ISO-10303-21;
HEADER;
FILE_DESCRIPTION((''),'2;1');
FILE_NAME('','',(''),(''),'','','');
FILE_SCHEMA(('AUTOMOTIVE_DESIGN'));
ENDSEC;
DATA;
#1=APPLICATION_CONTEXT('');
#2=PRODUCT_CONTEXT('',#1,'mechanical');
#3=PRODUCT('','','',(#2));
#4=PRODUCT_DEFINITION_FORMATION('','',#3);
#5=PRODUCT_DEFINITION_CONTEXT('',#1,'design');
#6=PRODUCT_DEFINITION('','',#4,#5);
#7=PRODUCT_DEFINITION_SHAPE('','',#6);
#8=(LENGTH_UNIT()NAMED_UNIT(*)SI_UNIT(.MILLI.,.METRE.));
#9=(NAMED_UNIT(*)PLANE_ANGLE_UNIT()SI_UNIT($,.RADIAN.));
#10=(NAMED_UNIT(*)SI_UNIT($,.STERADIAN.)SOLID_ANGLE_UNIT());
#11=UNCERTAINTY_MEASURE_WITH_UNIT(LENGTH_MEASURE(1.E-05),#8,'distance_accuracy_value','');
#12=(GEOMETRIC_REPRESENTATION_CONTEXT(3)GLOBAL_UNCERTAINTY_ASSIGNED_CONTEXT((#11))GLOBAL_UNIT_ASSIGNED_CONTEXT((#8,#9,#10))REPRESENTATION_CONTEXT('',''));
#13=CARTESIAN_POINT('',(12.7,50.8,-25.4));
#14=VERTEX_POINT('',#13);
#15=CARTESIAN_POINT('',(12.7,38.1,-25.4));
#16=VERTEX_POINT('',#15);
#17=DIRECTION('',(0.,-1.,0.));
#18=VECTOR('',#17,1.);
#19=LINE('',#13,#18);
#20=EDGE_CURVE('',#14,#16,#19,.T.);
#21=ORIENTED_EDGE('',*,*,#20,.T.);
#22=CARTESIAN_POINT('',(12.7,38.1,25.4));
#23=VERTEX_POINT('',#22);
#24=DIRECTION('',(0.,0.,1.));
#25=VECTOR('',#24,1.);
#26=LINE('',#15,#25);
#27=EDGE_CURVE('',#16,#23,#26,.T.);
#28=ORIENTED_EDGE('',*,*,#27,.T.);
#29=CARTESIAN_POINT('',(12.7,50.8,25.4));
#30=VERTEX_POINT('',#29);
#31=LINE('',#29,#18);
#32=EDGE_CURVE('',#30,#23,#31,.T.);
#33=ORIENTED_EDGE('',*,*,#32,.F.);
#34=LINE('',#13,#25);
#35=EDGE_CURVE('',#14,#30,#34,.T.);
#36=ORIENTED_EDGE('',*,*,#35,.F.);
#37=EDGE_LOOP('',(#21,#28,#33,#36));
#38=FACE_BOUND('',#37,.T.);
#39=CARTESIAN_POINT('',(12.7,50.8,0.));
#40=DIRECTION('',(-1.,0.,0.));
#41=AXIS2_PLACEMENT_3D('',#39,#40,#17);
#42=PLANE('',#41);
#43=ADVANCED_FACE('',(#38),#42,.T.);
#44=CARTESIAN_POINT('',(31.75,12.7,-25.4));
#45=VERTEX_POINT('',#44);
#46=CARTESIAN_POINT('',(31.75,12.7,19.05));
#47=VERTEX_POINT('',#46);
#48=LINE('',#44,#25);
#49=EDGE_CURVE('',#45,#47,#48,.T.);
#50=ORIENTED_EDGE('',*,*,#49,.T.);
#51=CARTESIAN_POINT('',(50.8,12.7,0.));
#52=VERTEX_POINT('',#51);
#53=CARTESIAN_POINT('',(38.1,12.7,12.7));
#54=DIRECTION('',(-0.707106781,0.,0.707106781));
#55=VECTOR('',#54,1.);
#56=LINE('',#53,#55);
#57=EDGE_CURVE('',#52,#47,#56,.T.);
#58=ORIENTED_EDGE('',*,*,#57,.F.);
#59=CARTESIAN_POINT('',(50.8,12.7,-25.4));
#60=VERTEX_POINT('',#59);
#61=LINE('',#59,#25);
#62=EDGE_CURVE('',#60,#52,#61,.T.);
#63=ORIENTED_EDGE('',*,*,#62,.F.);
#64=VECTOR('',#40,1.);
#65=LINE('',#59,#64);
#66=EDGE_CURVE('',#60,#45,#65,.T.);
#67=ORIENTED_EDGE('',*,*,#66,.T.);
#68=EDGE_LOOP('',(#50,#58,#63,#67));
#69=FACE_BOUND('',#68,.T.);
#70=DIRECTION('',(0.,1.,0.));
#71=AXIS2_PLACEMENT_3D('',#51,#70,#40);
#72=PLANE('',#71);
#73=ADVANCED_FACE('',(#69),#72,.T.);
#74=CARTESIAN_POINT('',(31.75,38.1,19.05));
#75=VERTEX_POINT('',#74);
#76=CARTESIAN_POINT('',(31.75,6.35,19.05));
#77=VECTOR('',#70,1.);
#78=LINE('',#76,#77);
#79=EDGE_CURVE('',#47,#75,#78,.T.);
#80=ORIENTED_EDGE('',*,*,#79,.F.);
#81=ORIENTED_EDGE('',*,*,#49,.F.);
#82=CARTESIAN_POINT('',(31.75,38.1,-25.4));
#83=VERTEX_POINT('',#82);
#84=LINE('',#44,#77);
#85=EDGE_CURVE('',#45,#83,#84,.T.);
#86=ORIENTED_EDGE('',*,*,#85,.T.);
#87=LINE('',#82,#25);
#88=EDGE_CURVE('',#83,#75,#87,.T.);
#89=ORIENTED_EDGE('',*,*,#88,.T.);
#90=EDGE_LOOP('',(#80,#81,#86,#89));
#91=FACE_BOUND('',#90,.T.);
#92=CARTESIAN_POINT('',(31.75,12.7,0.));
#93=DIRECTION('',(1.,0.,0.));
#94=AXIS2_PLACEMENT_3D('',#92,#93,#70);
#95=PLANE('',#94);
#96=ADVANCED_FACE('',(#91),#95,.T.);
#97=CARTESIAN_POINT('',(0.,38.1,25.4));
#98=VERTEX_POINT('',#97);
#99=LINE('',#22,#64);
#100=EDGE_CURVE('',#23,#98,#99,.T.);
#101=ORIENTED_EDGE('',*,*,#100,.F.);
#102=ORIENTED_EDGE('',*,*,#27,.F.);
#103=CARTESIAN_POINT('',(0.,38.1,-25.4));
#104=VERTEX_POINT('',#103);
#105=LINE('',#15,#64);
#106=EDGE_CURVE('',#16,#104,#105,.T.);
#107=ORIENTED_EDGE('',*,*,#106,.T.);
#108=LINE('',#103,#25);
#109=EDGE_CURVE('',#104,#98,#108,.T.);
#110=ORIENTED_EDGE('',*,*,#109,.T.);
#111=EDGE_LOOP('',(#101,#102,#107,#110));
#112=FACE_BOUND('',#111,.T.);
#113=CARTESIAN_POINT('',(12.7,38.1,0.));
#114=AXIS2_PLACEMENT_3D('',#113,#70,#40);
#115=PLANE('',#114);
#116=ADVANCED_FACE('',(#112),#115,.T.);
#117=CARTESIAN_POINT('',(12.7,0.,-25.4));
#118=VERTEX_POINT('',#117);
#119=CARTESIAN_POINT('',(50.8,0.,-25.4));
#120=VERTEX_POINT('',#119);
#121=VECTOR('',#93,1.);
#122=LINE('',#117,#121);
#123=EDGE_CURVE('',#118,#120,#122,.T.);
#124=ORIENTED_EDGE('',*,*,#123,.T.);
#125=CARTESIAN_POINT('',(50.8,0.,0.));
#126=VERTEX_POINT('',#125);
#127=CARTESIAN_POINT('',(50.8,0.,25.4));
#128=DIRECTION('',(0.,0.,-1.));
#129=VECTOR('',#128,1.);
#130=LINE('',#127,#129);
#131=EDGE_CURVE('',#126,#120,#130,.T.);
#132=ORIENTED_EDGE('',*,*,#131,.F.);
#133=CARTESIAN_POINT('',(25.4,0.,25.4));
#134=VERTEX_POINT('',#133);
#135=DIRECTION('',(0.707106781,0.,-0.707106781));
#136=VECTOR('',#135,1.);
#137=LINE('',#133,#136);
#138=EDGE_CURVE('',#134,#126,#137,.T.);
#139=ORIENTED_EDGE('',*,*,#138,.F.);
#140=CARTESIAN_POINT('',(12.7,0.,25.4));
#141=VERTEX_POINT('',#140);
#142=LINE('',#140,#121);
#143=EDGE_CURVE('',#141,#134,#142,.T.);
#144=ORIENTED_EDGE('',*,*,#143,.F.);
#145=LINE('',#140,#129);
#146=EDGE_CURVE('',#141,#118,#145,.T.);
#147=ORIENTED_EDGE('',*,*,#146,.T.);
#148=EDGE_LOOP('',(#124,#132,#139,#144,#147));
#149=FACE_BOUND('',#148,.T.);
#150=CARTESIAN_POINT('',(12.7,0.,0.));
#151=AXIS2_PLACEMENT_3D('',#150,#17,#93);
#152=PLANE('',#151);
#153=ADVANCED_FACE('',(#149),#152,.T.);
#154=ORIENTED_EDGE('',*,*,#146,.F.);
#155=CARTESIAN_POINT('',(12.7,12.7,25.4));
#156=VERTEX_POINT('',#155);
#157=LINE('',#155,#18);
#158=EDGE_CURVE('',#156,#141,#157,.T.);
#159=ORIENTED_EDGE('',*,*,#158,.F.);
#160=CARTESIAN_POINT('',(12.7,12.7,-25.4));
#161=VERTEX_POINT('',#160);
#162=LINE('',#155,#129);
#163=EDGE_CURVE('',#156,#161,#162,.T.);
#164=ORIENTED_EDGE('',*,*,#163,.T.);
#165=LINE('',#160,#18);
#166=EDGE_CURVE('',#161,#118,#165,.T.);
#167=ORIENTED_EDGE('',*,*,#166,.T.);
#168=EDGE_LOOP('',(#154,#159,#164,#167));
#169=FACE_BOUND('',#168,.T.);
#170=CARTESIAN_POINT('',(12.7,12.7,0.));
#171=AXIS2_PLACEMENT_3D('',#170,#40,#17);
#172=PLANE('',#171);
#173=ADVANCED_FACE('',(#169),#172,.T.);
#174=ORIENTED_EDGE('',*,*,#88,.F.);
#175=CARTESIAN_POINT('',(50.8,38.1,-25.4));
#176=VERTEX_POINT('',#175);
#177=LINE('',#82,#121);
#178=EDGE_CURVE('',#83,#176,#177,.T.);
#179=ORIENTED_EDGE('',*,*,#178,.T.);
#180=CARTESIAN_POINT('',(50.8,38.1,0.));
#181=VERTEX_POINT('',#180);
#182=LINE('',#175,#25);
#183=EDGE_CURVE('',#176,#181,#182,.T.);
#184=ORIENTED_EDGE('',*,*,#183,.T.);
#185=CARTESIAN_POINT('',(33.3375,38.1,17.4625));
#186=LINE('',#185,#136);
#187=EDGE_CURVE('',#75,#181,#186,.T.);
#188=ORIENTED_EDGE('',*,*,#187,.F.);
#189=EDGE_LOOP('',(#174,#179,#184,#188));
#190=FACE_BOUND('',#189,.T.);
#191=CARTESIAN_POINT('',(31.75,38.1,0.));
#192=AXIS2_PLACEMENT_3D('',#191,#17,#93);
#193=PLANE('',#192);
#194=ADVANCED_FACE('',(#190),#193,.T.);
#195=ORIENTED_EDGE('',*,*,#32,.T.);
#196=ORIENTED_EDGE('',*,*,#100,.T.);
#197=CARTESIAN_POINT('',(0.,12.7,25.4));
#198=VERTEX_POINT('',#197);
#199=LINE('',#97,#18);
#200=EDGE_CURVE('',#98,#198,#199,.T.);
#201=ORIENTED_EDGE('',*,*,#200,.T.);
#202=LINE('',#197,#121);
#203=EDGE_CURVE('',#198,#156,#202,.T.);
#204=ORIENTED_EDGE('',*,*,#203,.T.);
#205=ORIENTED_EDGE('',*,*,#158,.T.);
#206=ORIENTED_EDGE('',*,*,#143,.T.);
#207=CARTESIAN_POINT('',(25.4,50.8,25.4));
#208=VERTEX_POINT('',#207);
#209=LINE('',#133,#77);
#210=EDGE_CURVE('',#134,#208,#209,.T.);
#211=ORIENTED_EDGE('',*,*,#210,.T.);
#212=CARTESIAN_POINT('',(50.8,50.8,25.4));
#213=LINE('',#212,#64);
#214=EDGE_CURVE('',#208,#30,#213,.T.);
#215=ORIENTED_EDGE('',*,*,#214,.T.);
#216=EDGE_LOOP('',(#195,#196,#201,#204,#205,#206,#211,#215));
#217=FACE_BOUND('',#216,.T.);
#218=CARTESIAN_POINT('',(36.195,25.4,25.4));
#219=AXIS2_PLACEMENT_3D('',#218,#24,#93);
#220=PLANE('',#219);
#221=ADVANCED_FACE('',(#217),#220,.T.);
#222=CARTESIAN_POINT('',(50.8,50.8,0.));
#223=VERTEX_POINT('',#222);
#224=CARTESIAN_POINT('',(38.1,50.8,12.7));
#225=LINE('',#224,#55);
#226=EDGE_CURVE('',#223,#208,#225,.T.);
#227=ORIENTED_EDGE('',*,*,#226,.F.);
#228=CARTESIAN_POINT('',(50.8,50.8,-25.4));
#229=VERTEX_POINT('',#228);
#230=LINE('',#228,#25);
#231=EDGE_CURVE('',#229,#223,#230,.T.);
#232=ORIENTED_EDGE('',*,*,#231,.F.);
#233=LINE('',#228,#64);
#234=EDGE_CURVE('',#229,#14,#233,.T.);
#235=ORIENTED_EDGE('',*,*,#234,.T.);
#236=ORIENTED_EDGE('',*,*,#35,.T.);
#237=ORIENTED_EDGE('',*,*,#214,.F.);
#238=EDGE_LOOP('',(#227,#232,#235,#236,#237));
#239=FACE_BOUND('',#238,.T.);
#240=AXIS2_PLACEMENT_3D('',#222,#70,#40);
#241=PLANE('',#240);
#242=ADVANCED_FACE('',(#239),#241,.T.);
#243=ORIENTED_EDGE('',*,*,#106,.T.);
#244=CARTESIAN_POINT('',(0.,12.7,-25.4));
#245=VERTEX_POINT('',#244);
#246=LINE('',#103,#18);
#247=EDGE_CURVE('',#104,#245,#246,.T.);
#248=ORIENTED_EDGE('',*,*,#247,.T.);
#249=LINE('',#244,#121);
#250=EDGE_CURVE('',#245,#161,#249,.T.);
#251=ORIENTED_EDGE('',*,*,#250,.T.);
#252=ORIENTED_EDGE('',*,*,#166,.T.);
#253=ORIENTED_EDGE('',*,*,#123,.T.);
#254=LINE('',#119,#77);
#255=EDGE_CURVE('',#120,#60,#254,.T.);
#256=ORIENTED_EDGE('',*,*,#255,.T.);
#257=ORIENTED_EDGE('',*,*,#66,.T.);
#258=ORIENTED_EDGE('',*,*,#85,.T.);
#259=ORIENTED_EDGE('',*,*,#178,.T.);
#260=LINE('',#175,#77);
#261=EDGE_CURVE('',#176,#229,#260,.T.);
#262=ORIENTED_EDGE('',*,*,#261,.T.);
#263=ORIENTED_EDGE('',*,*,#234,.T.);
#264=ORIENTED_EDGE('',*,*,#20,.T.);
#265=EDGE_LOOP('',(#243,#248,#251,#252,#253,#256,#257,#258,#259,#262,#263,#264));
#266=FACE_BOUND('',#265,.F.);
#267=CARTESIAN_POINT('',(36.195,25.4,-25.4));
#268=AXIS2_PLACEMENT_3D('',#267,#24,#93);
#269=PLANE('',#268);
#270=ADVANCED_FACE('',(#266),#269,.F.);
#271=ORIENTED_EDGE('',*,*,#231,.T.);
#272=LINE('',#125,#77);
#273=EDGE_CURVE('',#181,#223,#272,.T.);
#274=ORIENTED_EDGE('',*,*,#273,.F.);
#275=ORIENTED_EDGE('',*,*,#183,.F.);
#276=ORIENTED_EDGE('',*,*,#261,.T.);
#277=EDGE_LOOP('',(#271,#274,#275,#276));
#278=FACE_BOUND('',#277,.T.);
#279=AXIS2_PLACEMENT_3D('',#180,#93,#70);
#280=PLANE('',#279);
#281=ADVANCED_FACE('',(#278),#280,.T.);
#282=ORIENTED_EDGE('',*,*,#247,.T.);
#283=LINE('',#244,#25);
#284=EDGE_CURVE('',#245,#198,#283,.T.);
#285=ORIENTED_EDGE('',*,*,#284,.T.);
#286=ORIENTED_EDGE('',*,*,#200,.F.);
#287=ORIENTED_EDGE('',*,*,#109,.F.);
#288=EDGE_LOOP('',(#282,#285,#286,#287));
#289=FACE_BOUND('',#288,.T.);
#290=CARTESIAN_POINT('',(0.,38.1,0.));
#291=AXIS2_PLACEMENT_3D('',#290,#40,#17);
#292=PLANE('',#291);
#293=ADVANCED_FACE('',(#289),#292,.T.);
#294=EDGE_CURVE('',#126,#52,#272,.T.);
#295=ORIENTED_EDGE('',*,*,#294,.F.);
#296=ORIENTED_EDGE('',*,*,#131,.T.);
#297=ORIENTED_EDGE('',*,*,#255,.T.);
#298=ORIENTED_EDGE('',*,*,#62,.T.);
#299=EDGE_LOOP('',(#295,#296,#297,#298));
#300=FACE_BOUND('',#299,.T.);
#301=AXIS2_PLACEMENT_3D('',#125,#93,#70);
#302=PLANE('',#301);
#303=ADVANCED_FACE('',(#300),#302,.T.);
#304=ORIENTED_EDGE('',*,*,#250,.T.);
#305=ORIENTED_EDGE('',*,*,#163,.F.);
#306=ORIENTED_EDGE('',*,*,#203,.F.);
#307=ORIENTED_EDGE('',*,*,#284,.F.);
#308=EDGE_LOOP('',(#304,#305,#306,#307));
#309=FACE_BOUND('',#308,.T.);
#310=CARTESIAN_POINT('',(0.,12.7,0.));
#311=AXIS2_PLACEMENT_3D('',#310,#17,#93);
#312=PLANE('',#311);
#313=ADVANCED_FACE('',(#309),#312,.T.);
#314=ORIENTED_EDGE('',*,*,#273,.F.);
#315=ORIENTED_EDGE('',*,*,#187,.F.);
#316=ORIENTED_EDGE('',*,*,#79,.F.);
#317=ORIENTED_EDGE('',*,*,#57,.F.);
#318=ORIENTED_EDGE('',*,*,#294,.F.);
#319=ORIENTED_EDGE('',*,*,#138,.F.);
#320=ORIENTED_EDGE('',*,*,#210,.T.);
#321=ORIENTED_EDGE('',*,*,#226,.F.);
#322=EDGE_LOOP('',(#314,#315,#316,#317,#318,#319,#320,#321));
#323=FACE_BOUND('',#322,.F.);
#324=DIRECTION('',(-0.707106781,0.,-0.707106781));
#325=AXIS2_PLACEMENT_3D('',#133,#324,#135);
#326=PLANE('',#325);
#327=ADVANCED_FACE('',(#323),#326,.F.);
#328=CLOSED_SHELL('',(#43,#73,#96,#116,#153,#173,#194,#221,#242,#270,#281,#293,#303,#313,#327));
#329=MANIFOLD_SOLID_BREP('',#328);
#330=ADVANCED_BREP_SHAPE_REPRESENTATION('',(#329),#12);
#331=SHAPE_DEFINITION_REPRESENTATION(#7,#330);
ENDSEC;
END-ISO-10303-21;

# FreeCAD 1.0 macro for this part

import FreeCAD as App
import Part
import Sketcher
from FreeCAD import Vector
Q = App.Units.Quantity


def add_polygon(sketch, points):
    """Adds a closed chain of lines whose ends are joined by coincident constraints."""
    first, n = sketch.GeometryCount, len(points)
    for a, b in zip(points, points[1:] + points[:1]):
        sketch.addGeometry(Part.LineSegment(App.Vector(*a, 0), App.Vector(*b, 0)), False)
    for i in range(n):
        sketch.addConstraint(Sketcher.Constraint("Coincident", first + i, 2, first + (i + 1) % n, 1))

doc = App.newDocument("Part")
body = doc.addObject("PartDesign::Body", "Body")

# Sketch on XY plane
sketch1 = doc.addObject("Sketcher::SketchObject", "Sketch")
body.addObject(sketch1)
sketch1.AttachmentSupport = (doc.XY_Plane, [""])
sketch1.MapMode = "FlatFace"
add_polygon(sketch1, [(51, 0), (51, 13), (32, 13), (32, 38), (51, 38), (51, 51), (13, 51), (13, 38), (0, 38), (0, 13), (13, 13), (13, 0)])  # lines 0-11
sketch1.addConstraint([
    Sketcher.Constraint("Vertical", 0),
    Sketcher.Constraint("Horizontal", 1),
    Sketcher.Constraint("Vertical", 2),
    Sketcher.Constraint("Horizontal", 3),
    Sketcher.Constraint("Vertical", 4),
    Sketcher.Constraint("Horizontal", 5),
    Sketcher.Constraint("Vertical", 6),
    Sketcher.Constraint("Horizontal", 7),
    Sketcher.Constraint("Vertical", 8),
    Sketcher.Constraint("Horizontal", 9),
    Sketcher.Constraint("Vertical", 10),
    Sketcher.Constraint("Horizontal", 11),
    Sketcher.Constraint("PointOnObject", 7, 2, -2),
    Sketcher.Constraint("PointOnObject", 10, 2, -1),
    Sketcher.Constraint("Horizontal", 3, 2, 6, 2),
    Sketcher.Constraint("Horizontal", 1, 2, 8, 2),
    Sketcher.Constraint("Vertical", 0, 2, 3, 2),
    Sketcher.Constraint("Vertical", 6, 2, 9, 2),
    Sketcher.Constraint("Equal", 9, 0),
    Sketcher.Constraint("Equal", 0, 4),
    Sketcher.Constraint("DistanceY", 2, 1, 2, 2, Q("1 in")),
    Sketcher.Constraint("DistanceX", 5, 2, 5, 1, Q("1.5 in")),
    Sketcher.Constraint("DistanceX", 7, 2, 7, 1, Q("0.5 in")),
    Sketcher.Constraint("DistanceX", 1, 2, 1, 1, Q("0.75 in")),
])
pad1 = doc.addObject("PartDesign::Pad", "Pad")
body.addObject(pad1)
pad1.Profile = sketch1
pad1.Length = Q("2 in")
pad1.Midplane = True

# Sketch on XZ plane
sketch2 = doc.addObject("Sketcher::SketchObject", "Sketch001")
body.addObject(sketch2)
sketch2.AttachmentSupport = (doc.XZ_Plane, [""])
sketch2.MapMode = "FlatFace"
add_polygon(sketch2, [(25, 25), (51, 0), (51, 25)])  # lines 0-2
sketch2.addConstraint([
    Sketcher.Constraint("Vertical", 1),
    Sketcher.Constraint("Horizontal", 2),
    Sketcher.Constraint("PointOnObject", 0, 2, -1),
    Sketcher.Constraint("Equal", 2, 1),
    Sketcher.Constraint("DistanceX", 2, 2, 2, 1, Q("1 in")),
    Sketcher.Constraint("DistanceX", -1, 1, 0, 2, Q("2 in")),
])
pocket1 = doc.addObject("PartDesign::Pocket", "Pocket")
body.addObject(pocket1)
pocket1.Profile = sketch2
pocket1.Type = "ThroughAll"

doc.recompute()
